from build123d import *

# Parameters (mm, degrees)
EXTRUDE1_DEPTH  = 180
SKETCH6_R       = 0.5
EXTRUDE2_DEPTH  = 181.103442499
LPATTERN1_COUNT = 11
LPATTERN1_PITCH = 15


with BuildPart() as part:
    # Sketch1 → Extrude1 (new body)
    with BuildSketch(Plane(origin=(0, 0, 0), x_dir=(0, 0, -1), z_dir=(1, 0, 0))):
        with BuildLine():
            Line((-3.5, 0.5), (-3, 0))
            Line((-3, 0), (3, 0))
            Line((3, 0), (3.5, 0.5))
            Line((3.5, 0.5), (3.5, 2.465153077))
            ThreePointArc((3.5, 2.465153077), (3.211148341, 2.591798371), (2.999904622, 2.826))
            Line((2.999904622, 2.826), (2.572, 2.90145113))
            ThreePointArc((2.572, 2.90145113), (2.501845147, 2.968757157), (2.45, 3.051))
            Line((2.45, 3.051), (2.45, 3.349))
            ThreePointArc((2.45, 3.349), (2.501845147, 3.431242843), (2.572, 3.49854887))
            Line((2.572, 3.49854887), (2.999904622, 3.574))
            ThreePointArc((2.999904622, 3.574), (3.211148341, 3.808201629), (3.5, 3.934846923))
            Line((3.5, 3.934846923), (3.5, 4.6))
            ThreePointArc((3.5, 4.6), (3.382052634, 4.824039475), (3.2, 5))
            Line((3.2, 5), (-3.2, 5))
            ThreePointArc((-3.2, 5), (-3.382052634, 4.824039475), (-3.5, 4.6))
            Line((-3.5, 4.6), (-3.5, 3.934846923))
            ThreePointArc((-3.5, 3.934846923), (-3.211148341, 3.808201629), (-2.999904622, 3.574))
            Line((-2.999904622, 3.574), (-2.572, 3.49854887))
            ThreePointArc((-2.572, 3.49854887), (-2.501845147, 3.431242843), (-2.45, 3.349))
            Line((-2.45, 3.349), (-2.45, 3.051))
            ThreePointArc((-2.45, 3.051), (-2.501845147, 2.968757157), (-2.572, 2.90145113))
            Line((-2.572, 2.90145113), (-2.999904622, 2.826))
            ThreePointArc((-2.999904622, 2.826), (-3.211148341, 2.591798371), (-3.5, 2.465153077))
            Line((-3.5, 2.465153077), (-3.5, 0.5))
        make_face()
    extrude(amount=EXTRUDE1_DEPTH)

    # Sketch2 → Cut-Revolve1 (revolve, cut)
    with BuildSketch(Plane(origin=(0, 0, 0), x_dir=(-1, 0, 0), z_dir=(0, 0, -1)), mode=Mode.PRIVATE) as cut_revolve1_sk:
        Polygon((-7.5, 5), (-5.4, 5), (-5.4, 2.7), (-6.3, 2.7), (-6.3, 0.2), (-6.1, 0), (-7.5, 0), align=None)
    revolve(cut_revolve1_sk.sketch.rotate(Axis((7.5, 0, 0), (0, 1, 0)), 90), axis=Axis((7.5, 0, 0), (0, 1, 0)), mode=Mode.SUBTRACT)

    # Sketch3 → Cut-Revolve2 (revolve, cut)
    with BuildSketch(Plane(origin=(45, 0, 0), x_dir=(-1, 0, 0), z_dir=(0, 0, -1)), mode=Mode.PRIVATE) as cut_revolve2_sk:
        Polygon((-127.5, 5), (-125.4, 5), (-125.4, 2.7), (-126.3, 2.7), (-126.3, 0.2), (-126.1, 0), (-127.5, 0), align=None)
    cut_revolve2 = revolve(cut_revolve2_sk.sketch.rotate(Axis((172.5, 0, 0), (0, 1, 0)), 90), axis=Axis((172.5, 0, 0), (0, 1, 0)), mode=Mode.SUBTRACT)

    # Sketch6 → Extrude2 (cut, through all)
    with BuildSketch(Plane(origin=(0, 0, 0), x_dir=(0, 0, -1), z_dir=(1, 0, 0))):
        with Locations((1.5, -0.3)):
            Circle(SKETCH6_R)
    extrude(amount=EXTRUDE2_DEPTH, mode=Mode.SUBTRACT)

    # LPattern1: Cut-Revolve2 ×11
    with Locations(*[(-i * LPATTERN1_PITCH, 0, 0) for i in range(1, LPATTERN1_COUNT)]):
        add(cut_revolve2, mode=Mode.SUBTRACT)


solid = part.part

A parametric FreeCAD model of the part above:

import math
import FreeCAD as App
import Part
import Sketcher
Q = App.Units.Quantity


def add_polygon(sketch, points):
    """Adds a closed chain of lines whose ends are joined by coincident constraints."""
    first, n = sketch.GeometryCount, len(points)
    for a, b in zip(points, points[1:] + points[:1]):
        sketch.addGeometry(Part.LineSegment(App.Vector(*a, 0), App.Vector(*b, 0)), False)
    for i in range(n):
        sketch.addConstraint(Sketcher.Constraint("Coincident", first + i, 2, first + (i + 1) % n, 1))

doc = App.newDocument("Part")
body = doc.addObject("PartDesign::Body", "Body")

sketch1 = body.newObject("Sketcher::SketchObject", "Sketch")
sketch1.AttachmentSupport = (doc.getObject("YZ_Plane"), [""])
sketch1.MapMode = "FlatFace"
sketch1.addGeometry(Part.LineSegment(App.Vector(0.5, 3.5, 0), App.Vector(0, 3, 0)), False)
sketch1.addGeometry(Part.LineSegment(App.Vector(0, 3, 0), App.Vector(0, -3, 0)), False)
sketch1.addGeometry(Part.LineSegment(App.Vector(0, -3, 0), App.Vector(0.5, -3.5, 0)), False)
sketch1.addGeometry(Part.LineSegment(App.Vector(0.5, -3.5, 0), App.Vector(2.47, -3.5, 0)), False)
sketch1.addGeometry(Part.ArcOfCircle(Part.Circle(App.Vector(3.2, -3.65, 0), App.Vector(0, 0, 1), 0.75), math.radians(120), math.radians(168)), False)
sketch1.addGeometry(Part.LineSegment(App.Vector(2.83, -3, 0), App.Vector(2.9, -2.57, 0)), False)
sketch1.addGeometry(Part.ArcOfCircle(Part.Circle(App.Vector(3.22, -2.81, 0), App.Vector(0, 0, 1), 0.4), math.radians(115), math.radians(143)), False)
sketch1.addGeometry(Part.LineSegment(App.Vector(3.05, -2.45, 0), App.Vector(3.35, -2.45, 0)), False)
sketch1.addGeometry(Part.ArcOfCircle(Part.Circle(App.Vector(3.18, -2.81, 0), App.Vector(0, 0, 1), 0.4), math.radians(37), math.radians(65)), False)
sketch1.addGeometry(Part.LineSegment(App.Vector(3.5, -2.57, 0), App.Vector(3.57, -3, 0)), False)
sketch1.addGeometry(Part.ArcOfCircle(Part.Circle(App.Vector(3.2, -3.65, 0), App.Vector(0, 0, 1), 0.75), math.radians(12), math.radians(60)), False)
sketch1.addGeometry(Part.LineSegment(App.Vector(3.93, -3.5, 0), App.Vector(4.6, -3.5, 0)), False)
sketch1.addGeometry(Part.ArcOfCircle(Part.Circle(App.Vector(4.34, -2.74, 0), App.Vector(0, 0, 1), 0.8), math.radians(-71), math.radians(-35)), False)
sketch1.addGeometry(Part.LineSegment(App.Vector(5, -3.2, 0), App.Vector(5, 3.2, 0)), False)
sketch1.addGeometry(Part.ArcOfCircle(Part.Circle(App.Vector(4.34, 2.74, 0), App.Vector(0, 0, 1), 0.8), math.radians(35), math.radians(71)), False)
sketch1.addGeometry(Part.LineSegment(App.Vector(4.6, 3.5, 0), App.Vector(3.93, 3.5, 0)), False)
sketch1.addGeometry(Part.ArcOfCircle(Part.Circle(App.Vector(3.2, 3.65, 0), App.Vector(0, 0, 1), 0.75), math.radians(-60), math.radians(-12)), False)
sketch1.addGeometry(Part.LineSegment(App.Vector(3.57, 3, 0), App.Vector(3.5, 2.57, 0)), False)
sketch1.addGeometry(Part.ArcOfCircle(Part.Circle(App.Vector(3.18, 2.81, 0), App.Vector(0, 0, 1), 0.4), math.radians(-65), math.radians(-37)), False)
sketch1.addGeometry(Part.LineSegment(App.Vector(3.35, 2.45, 0), App.Vector(3.05, 2.45, 0)), False)
sketch1.addGeometry(Part.ArcOfCircle(Part.Circle(App.Vector(3.22, 2.81, 0), App.Vector(0, 0, 1), 0.4), math.radians(-143), math.radians(-115)), False)
sketch1.addGeometry(Part.LineSegment(App.Vector(2.9, 2.57, 0), App.Vector(2.83, 3, 0)), False)
sketch1.addGeometry(Part.ArcOfCircle(Part.Circle(App.Vector(3.2, 3.65, 0), App.Vector(0, 0, 1), 0.75), math.radians(-168), math.radians(-120)), False)
sketch1.addGeometry(Part.LineSegment(App.Vector(2.47, 3.5, 0), App.Vector(0.5, 3.5, 0)), False)
sketch1.addConstraint(Sketcher.Constraint("Coincident", 0, 2, 1, 1))
sketch1.addConstraint(Sketcher.Constraint("Coincident", 1, 2, 2, 1))
sketch1.addConstraint(Sketcher.Constraint("Coincident", 2, 2, 3, 1))
sketch1.addConstraint(Sketcher.Constraint("Coincident", 3, 2, 4, 2))
sketch1.addConstraint(Sketcher.Constraint("Coincident", 4, 1, 5, 1))
sketch1.addConstraint(Sketcher.Constraint("Coincident", 5, 2, 6, 2))
sketch1.addConstraint(Sketcher.Constraint("Coincident", 6, 1, 7, 1))
sketch1.addConstraint(Sketcher.Constraint("Coincident", 7, 2, 8, 2))
sketch1.addConstraint(Sketcher.Constraint("Coincident", 8, 1, 9, 1))
sketch1.addConstraint(Sketcher.Constraint("Coincident", 9, 2, 10, 2))
sketch1.addConstraint(Sketcher.Constraint("Coincident", 10, 1, 11, 1))
sketch1.addConstraint(Sketcher.Constraint("Coincident", 11, 2, 12, 1))
sketch1.addConstraint(Sketcher.Constraint("Coincident", 12, 2, 13, 1))
sketch1.addConstraint(Sketcher.Constraint("Coincident", 13, 2, 14, 1))
sketch1.addConstraint(Sketcher.Constraint("Coincident", 14, 2, 15, 1))
sketch1.addConstraint(Sketcher.Constraint("Coincident", 15, 2, 16, 2))
sketch1.addConstraint(Sketcher.Constraint("Coincident", 16, 1, 17, 1))
sketch1.addConstraint(Sketcher.Constraint("Coincident", 17, 2, 18, 2))
sketch1.addConstraint(Sketcher.Constraint("Coincident", 18, 1, 19, 1))
sketch1.addConstraint(Sketcher.Constraint("Coincident", 19, 2, 20, 2))
sketch1.addConstraint(Sketcher.Constraint("Coincident", 20, 1, 21, 1))
sketch1.addConstraint(Sketcher.Constraint("Coincident", 21, 2, 22, 2))
sketch1.addConstraint(Sketcher.Constraint("Coincident", 22, 1, 23, 1))
sketch1.addConstraint(Sketcher.Constraint("Coincident", 23, 2, 0, 1))
sketch1.addConstraint(Sketcher.Constraint("Vertical", 1))
sketch1.addConstraint(Sketcher.Constraint("Horizontal", 3))
sketch1.addConstraint(Sketcher.Constraint("Horizontal", 7))
sketch1.addConstraint(Sketcher.Constraint("Horizontal", 11))
sketch1.addConstraint(Sketcher.Constraint("Vertical", 13))
sketch1.addConstraint(Sketcher.Constraint("Horizontal", 15))
sketch1.addConstraint(Sketcher.Constraint("Horizontal", 19))
sketch1.addConstraint(Sketcher.Constraint("Horizontal", 23))
sketch1.addConstraint(Sketcher.Constraint("Coincident", 10, 3, 4, 3))
sketch1.addConstraint(Sketcher.Constraint("Coincident", 22, 3, 16, 3))
sketch1.addConstraint(Sketcher.Constraint("Equal", 6, 8))
sketch1.addConstraint(Sketcher.Constraint("Equal", 4, 10))
sketch1.addConstraint(Sketcher.Constraint("Equal", 12, 14))
sketch1.addConstraint(Sketcher.Constraint("Equal", 10, 16))
sketch1.addConstraint(Sketcher.Constraint("Equal", 8, 18))
sketch1.addConstraint(Sketcher.Constraint("Equal", 18, 20))
sketch1.addConstraint(Sketcher.Constraint("Equal", 16, 22))
sketch1.addConstraint(Sketcher.Constraint("Symmetric", 0, 2, 1, 2, -1, 1))
sketch1.addConstraint(Sketcher.Constraint("Symmetric", 12, 3, 14, 3, -1))
sketch1.addConstraint(Sketcher.Constraint("Symmetric", 4, 3, 16, 3, -1))
sketch1.addConstraint(Sketcher.Constraint("Symmetric", 8, 3, 18, 3, -1))
sketch1.addConstraint(Sketcher.Constraint("Symmetric", 6, 3, 20, 3, -1))
sketch1.addConstraint(Sketcher.Constraint("Symmetric", 2, 2, 23, 2, -1))
sketch1.addConstraint(Sketcher.Constraint("Perpendicular", 0, 2))
sketch1.addConstraint(Sketcher.Constraint("Parallel", 5, 17))
sketch1.addConstraint(Sketcher.Constraint("Parallel", 9, 21))
sketch1.addConstraint(Sketcher.Constraint("Horizontal", 6, 3, 8, 3))
sketch1.addConstraint(Sketcher.Constraint("Horizontal", 5, 2, 8, 1))
sketch1.addConstraint(Sketcher.Constraint("Horizontal", 4, 1, 9, 2))
sketch1.addConstraint(Sketcher.Constraint("Horizontal", 3, 2, 10, 1))
sketch1.addConstraint(Sketcher.Constraint("Horizontal", 17, 2, 20, 1))
sketch1.addConstraint(Sketcher.Constraint("Horizontal", 16, 1, 21, 2))
sketch1.addConstraint(Sketcher.Constraint("Horizontal", 15, 2, 22, 1))
sketch1.addConstraint(Sketcher.Constraint("Vertical", 9, 2, 16, 1))
sketch1.addConstraint(Sketcher.Constraint("Vertical", 7, 2, 18, 1))
sketch1.addConstraint(Sketcher.Constraint("Radius", 6, Q("0.4 mm")))
sketch1.addConstraint(Sketcher.Constraint("Radius", 12, Q("0.8 mm")))
sketch1.addConstraint(Sketcher.Constraint("DistanceY", 1, 2, 1, 1, Q("6 mm")))
sketch1.addConstraint(Sketcher.Constraint("Angle", 5, Q("80 deg")))
sketch1.addConstraint(Sketcher.Constraint("Radius", 4, Q("0.75 mm")))
sketch1.addConstraint(Sketcher.Constraint("DistanceY", 13, 1, 13, 2, Q("6.4 mm")))
sketch1.addConstraint(Sketcher.Constraint("DistanceX", -1, 1, 12, 2, Q("5 mm")))
sketch1.addConstraint(Sketcher.Constraint("DistanceX", -1, 1, 4, 3, Q("3.2 mm")))
sketch1.addConstraint(Sketcher.Constraint("DistanceX", -1, 1, 2, 2, Q("0.5 mm")))
sketch1.addConstraint(Sketcher.Constraint("DistanceX", -1, 1, 11, 2, Q("4.6 mm")))
sketch1.addConstraint(Sketcher.Constraint("DistanceY", 4, 3, 16, 3, Q("7.3 mm")))
sketch1.addConstraint(Sketcher.Constraint("DistanceX", 7, 1, 7, 2, Q("0.298 mm")))
sketch1.addConstraint(Sketcher.Constraint("DistanceY", 6, 1, -1, 1, Q("2.45 mm")))
sketch1.addConstraint(Sketcher.Constraint("DistanceX", -1, 1, 4, 1, Q("2.826 mm")))
sketch1.addConstraint(Sketcher.Constraint("DistanceY", 5, 2, -1, 1, Q("2.572 mm")))
pad1 = body.newObject("PartDesign::Pad", "Pad")
pad1.Profile = sketch1
pad1.Length = 180

sketch2 = body.newObject("Sketcher::SketchObject", "Sketch001")
sketch2.AttachmentSupport = (doc.getObject("XY_Plane"), [""])
sketch2.MapMode = "FlatFace"
add_polygon(sketch2, [(5.4, 5), (7.5, 5), (7.5, 0), (6.1, 0), (6.3, 0.2), (6.3, 2.7), (5.4, 2.7)])
sketch2.addGeometry(Part.LineSegment(App.Vector(7.5, 0, 0), App.Vector(7.5, 5, 0)), True)
sketch2.addConstraint(Sketcher.Constraint("Horizontal", 0))
sketch2.addConstraint(Sketcher.Constraint("Vertical", 1))
sketch2.addConstraint(Sketcher.Constraint("Horizontal", 2))
sketch2.addConstraint(Sketcher.Constraint("Vertical", 4))
sketch2.addConstraint(Sketcher.Constraint("Horizontal", 5))
sketch2.addConstraint(Sketcher.Constraint("Vertical", 6))
sketch2.addConstraint(Sketcher.Constraint("Vertical", 7))
sketch2.addConstraint(Sketcher.Constraint("Coincident", 7, 1, 1, 2))
sketch2.addConstraint(Sketcher.Constraint("PointOnObject", 1, 2, -1))
sketch2.addConstraint(Sketcher.Constraint("Horizontal", 6, 2, 7, 2))
sketch2.addConstraint(Sketcher.Constraint("DistanceY", 1, 2, 1, 1, Q("5 mm")))
sketch2.addConstraint(Sketcher.Constraint("Angle", 3, Q("45 deg")))
sketch2.addConstraint(Sketcher.Constraint("DistanceX", 0, 1, 0, 2, Q("2.1 mm")))
sketch2.addConstraint(Sketcher.Constraint("DistanceX", 2, 2, 2, 1, Q("1.4 mm")))
sketch2.addConstraint(Sketcher.Constraint("DistanceX", 5, 2, 5, 1, Q("0.9 mm")))
sketch2.addConstraint(Sketcher.Constraint("DistanceY", 4, 1, 4, 2, Q("2.5 mm")))
sketch2.addConstraint(Sketcher.Constraint("DistanceX", -1, 1, 0, 2, Q("7.5 mm")))
groove = body.newObject("PartDesign::Groove", "Groove")
groove.Profile = sketch2
groove.ReferenceAxis = (sketch2, ["Axis0"])
groove.Angle = 360

sketch3 = body.newObject("Sketcher::SketchObject", "Sketch002")
sketch3.AttachmentSupport = (doc.getObject("XY_Plane"), [""])
sketch3.MapMode = "FlatFace"
add_polygon(sketch3, [(170.4, 5), (172.5, 5), (172.5, 0), (171.1, 0), (171.3, 0.2), (171.3, 2.7), (170.4, 2.7)])
sketch3.addGeometry(Part.LineSegment(App.Vector(172.5, 0, 0), App.Vector(172.5, 5, 0)), True)
sketch3.addConstraint(Sketcher.Constraint("Horizontal", 0))
sketch3.addConstraint(Sketcher.Constraint("Vertical", 1))
sketch3.addConstraint(Sketcher.Constraint("Horizontal", 2))
sketch3.addConstraint(Sketcher.Constraint("Vertical", 4))
sketch3.addConstraint(Sketcher.Constraint("Horizontal", 5))
sketch3.addConstraint(Sketcher.Constraint("Vertical", 6))
sketch3.addConstraint(Sketcher.Constraint("Vertical", 7))
sketch3.addConstraint(Sketcher.Constraint("Coincident", 7, 1, 1, 2))
sketch3.addConstraint(Sketcher.Constraint("PointOnObject", 1, 2, -1))
sketch3.addConstraint(Sketcher.Constraint("Horizontal", 6, 2, 7, 2))
sketch3.addConstraint(Sketcher.Constraint("DistanceY", 1, 2, 1, 1, Q("5 mm")))
sketch3.addConstraint(Sketcher.Constraint("Angle", 3, Q("45 deg")))
sketch3.addConstraint(Sketcher.Constraint("DistanceX", 0, 1, 0, 2, Q("2.1 mm")))
sketch3.addConstraint(Sketcher.Constraint("DistanceX", 2, 2, 2, 1, Q("1.4 mm")))
sketch3.addConstraint(Sketcher.Constraint("DistanceX", 5, 2, 5, 1, Q("0.9 mm")))
sketch3.addConstraint(Sketcher.Constraint("DistanceY", 4, 1, 4, 2, Q("2.5 mm")))
sketch3.addConstraint(Sketcher.Constraint("DistanceX", -1, 1, 0, 2, Q("172.5 mm")))
groove2 = body.newObject("PartDesign::Groove", "Groove001")
groove2.Profile = sketch3
groove2.ReferenceAxis = (sketch3, ["Axis0"])
groove2.Angle = 360

sketch4 = body.newObject("Sketcher::SketchObject", "Sketch003")
sketch4.AttachmentSupport = (doc.getObject("YZ_Plane"), [""])
sketch4.MapMode = "FlatFace"
sketch4.addGeometry(Part.Circle(App.Vector(-0.3, -1.5, 0), App.Vector(0, 0, 1), 0.5), False)
sketch4.addConstraint(Sketcher.Constraint("Diameter", 0, Q("1 mm")))
sketch4.addConstraint(Sketcher.Constraint("DistanceX", 0, 3, -1, 1, Q("0.3 mm")))
sketch4.addConstraint(Sketcher.Constraint("DistanceY", 0, 3, -1, 1, Q("1.5 mm")))
pocket1 = body.newObject("PartDesign::Pocket", "Pocket")
pocket1.Profile = sketch4
pocket1.Type = "ThroughAll"
pocket1.Reversed = True
doc.recompute()

linearpattern = body.newObject("PartDesign::LinearPattern", "LinearPattern")
linearpattern.Originals = [groove2]
linearpattern.Direction = (doc.getObject("X_Axis"), [""])
linearpattern.Mode = "offset"
linearpattern.Offset = 15
linearpattern.Occurrences = 11
linearpattern.Reversed = True
body.Tip = linearpattern

doc.recompute()
